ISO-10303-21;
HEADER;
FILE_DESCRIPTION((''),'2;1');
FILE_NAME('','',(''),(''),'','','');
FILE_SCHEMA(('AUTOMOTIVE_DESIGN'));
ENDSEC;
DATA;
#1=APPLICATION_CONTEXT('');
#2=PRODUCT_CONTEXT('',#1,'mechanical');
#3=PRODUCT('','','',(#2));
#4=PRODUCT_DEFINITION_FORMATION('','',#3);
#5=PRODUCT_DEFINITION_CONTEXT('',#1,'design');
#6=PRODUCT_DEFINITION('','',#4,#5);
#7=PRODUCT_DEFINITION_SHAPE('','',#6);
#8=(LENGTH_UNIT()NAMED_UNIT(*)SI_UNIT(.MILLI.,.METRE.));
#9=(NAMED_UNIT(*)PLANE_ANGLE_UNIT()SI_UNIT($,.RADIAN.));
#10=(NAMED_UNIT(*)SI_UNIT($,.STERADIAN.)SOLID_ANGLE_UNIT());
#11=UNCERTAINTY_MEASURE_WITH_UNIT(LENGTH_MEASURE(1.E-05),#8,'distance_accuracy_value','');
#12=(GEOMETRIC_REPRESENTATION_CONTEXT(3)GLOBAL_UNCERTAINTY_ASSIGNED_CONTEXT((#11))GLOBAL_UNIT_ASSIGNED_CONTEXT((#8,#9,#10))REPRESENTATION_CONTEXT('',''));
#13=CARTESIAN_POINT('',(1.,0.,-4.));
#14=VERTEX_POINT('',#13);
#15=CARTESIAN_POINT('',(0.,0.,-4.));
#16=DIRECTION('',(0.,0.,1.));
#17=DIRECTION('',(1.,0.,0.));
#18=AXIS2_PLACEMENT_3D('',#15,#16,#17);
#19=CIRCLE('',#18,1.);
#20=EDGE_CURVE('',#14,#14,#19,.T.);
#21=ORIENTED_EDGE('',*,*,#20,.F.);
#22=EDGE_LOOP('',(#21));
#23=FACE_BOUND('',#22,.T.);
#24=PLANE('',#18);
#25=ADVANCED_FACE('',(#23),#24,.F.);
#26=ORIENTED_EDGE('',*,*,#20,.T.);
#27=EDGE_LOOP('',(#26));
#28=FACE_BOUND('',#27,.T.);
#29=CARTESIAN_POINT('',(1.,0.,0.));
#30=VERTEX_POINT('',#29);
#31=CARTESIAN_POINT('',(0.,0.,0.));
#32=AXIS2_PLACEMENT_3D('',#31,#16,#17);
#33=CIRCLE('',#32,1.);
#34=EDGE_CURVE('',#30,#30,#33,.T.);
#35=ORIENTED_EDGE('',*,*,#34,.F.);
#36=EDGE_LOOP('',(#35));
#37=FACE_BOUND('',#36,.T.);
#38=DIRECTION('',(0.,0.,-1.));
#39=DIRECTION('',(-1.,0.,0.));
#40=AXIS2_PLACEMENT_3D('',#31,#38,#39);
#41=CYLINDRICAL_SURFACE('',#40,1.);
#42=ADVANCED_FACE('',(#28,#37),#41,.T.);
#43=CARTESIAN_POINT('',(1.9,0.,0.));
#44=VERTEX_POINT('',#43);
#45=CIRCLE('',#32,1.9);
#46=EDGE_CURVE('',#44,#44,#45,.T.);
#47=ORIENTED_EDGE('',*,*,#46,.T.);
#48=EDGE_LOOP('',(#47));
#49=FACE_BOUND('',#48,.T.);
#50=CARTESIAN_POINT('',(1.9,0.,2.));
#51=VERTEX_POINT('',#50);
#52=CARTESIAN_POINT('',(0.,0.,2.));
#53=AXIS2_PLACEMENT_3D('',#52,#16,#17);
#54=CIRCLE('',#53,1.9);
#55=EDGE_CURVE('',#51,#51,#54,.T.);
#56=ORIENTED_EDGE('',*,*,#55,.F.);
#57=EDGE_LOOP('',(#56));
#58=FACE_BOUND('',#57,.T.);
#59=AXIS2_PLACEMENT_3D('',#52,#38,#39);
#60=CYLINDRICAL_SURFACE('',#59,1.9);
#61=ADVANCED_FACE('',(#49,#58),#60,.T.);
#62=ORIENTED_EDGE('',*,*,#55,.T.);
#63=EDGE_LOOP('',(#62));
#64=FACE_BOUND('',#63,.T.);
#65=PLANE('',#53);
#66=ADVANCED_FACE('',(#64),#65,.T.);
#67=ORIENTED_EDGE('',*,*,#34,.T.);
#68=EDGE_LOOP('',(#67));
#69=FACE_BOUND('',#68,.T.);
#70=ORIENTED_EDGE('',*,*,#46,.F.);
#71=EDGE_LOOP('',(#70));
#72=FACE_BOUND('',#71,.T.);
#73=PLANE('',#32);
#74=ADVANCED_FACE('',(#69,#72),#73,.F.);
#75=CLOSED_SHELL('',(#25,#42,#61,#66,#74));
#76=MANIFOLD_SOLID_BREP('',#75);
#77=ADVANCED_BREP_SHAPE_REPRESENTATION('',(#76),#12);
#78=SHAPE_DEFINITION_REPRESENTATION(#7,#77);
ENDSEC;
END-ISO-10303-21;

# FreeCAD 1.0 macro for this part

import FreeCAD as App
import Part
import Sketcher
from FreeCAD import Vector

doc = App.newDocument("Part")
body = doc.addObject("PartDesign::Body", "Body")

sketch1 = body.newObject("Sketcher::SketchObject", "Sketch")
sketch1.AttachmentSupport = (doc.getObject("XY_Plane"), [""])
sketch1.MapMode = "FlatFace"
sketch1.AttachmentOffset = App.Placement(Vector(0, 0, -4), App.Rotation())
sketch1.addGeometry(Part.Circle(Vector(0, 0, 0), Vector(0, 0, 1), 1), False)
sketch1.addConstraint([
    Sketcher.Constraint("Coincident", 0, 3, -1, 1),
    Sketcher.Constraint("Diameter", 0, 2.0),
])
pad1 = body.newObject("PartDesign::Pad", "Pad")
pad1.Profile = sketch1
pad1.Length = 4

sketch2 = body.newObject("Sketcher::SketchObject", "Sketch001")
sketch2.AttachmentSupport = (doc.getObject("XY_Plane"), [""])
sketch2.MapMode = "FlatFace"
sketch2.addGeometry(Part.Circle(Vector(0, 0, 0), Vector(0, 0, 1), 1.9), False)
sketch2.addConstraint([
    Sketcher.Constraint("Coincident", 0, 3, -1, 1),
    Sketcher.Constraint("Diameter", 0, 3.8),
])
pad2 = body.newObject("PartDesign::Pad", "Pad001")
pad2.Profile = sketch2
pad2.Length = 2

doc.recompute()
